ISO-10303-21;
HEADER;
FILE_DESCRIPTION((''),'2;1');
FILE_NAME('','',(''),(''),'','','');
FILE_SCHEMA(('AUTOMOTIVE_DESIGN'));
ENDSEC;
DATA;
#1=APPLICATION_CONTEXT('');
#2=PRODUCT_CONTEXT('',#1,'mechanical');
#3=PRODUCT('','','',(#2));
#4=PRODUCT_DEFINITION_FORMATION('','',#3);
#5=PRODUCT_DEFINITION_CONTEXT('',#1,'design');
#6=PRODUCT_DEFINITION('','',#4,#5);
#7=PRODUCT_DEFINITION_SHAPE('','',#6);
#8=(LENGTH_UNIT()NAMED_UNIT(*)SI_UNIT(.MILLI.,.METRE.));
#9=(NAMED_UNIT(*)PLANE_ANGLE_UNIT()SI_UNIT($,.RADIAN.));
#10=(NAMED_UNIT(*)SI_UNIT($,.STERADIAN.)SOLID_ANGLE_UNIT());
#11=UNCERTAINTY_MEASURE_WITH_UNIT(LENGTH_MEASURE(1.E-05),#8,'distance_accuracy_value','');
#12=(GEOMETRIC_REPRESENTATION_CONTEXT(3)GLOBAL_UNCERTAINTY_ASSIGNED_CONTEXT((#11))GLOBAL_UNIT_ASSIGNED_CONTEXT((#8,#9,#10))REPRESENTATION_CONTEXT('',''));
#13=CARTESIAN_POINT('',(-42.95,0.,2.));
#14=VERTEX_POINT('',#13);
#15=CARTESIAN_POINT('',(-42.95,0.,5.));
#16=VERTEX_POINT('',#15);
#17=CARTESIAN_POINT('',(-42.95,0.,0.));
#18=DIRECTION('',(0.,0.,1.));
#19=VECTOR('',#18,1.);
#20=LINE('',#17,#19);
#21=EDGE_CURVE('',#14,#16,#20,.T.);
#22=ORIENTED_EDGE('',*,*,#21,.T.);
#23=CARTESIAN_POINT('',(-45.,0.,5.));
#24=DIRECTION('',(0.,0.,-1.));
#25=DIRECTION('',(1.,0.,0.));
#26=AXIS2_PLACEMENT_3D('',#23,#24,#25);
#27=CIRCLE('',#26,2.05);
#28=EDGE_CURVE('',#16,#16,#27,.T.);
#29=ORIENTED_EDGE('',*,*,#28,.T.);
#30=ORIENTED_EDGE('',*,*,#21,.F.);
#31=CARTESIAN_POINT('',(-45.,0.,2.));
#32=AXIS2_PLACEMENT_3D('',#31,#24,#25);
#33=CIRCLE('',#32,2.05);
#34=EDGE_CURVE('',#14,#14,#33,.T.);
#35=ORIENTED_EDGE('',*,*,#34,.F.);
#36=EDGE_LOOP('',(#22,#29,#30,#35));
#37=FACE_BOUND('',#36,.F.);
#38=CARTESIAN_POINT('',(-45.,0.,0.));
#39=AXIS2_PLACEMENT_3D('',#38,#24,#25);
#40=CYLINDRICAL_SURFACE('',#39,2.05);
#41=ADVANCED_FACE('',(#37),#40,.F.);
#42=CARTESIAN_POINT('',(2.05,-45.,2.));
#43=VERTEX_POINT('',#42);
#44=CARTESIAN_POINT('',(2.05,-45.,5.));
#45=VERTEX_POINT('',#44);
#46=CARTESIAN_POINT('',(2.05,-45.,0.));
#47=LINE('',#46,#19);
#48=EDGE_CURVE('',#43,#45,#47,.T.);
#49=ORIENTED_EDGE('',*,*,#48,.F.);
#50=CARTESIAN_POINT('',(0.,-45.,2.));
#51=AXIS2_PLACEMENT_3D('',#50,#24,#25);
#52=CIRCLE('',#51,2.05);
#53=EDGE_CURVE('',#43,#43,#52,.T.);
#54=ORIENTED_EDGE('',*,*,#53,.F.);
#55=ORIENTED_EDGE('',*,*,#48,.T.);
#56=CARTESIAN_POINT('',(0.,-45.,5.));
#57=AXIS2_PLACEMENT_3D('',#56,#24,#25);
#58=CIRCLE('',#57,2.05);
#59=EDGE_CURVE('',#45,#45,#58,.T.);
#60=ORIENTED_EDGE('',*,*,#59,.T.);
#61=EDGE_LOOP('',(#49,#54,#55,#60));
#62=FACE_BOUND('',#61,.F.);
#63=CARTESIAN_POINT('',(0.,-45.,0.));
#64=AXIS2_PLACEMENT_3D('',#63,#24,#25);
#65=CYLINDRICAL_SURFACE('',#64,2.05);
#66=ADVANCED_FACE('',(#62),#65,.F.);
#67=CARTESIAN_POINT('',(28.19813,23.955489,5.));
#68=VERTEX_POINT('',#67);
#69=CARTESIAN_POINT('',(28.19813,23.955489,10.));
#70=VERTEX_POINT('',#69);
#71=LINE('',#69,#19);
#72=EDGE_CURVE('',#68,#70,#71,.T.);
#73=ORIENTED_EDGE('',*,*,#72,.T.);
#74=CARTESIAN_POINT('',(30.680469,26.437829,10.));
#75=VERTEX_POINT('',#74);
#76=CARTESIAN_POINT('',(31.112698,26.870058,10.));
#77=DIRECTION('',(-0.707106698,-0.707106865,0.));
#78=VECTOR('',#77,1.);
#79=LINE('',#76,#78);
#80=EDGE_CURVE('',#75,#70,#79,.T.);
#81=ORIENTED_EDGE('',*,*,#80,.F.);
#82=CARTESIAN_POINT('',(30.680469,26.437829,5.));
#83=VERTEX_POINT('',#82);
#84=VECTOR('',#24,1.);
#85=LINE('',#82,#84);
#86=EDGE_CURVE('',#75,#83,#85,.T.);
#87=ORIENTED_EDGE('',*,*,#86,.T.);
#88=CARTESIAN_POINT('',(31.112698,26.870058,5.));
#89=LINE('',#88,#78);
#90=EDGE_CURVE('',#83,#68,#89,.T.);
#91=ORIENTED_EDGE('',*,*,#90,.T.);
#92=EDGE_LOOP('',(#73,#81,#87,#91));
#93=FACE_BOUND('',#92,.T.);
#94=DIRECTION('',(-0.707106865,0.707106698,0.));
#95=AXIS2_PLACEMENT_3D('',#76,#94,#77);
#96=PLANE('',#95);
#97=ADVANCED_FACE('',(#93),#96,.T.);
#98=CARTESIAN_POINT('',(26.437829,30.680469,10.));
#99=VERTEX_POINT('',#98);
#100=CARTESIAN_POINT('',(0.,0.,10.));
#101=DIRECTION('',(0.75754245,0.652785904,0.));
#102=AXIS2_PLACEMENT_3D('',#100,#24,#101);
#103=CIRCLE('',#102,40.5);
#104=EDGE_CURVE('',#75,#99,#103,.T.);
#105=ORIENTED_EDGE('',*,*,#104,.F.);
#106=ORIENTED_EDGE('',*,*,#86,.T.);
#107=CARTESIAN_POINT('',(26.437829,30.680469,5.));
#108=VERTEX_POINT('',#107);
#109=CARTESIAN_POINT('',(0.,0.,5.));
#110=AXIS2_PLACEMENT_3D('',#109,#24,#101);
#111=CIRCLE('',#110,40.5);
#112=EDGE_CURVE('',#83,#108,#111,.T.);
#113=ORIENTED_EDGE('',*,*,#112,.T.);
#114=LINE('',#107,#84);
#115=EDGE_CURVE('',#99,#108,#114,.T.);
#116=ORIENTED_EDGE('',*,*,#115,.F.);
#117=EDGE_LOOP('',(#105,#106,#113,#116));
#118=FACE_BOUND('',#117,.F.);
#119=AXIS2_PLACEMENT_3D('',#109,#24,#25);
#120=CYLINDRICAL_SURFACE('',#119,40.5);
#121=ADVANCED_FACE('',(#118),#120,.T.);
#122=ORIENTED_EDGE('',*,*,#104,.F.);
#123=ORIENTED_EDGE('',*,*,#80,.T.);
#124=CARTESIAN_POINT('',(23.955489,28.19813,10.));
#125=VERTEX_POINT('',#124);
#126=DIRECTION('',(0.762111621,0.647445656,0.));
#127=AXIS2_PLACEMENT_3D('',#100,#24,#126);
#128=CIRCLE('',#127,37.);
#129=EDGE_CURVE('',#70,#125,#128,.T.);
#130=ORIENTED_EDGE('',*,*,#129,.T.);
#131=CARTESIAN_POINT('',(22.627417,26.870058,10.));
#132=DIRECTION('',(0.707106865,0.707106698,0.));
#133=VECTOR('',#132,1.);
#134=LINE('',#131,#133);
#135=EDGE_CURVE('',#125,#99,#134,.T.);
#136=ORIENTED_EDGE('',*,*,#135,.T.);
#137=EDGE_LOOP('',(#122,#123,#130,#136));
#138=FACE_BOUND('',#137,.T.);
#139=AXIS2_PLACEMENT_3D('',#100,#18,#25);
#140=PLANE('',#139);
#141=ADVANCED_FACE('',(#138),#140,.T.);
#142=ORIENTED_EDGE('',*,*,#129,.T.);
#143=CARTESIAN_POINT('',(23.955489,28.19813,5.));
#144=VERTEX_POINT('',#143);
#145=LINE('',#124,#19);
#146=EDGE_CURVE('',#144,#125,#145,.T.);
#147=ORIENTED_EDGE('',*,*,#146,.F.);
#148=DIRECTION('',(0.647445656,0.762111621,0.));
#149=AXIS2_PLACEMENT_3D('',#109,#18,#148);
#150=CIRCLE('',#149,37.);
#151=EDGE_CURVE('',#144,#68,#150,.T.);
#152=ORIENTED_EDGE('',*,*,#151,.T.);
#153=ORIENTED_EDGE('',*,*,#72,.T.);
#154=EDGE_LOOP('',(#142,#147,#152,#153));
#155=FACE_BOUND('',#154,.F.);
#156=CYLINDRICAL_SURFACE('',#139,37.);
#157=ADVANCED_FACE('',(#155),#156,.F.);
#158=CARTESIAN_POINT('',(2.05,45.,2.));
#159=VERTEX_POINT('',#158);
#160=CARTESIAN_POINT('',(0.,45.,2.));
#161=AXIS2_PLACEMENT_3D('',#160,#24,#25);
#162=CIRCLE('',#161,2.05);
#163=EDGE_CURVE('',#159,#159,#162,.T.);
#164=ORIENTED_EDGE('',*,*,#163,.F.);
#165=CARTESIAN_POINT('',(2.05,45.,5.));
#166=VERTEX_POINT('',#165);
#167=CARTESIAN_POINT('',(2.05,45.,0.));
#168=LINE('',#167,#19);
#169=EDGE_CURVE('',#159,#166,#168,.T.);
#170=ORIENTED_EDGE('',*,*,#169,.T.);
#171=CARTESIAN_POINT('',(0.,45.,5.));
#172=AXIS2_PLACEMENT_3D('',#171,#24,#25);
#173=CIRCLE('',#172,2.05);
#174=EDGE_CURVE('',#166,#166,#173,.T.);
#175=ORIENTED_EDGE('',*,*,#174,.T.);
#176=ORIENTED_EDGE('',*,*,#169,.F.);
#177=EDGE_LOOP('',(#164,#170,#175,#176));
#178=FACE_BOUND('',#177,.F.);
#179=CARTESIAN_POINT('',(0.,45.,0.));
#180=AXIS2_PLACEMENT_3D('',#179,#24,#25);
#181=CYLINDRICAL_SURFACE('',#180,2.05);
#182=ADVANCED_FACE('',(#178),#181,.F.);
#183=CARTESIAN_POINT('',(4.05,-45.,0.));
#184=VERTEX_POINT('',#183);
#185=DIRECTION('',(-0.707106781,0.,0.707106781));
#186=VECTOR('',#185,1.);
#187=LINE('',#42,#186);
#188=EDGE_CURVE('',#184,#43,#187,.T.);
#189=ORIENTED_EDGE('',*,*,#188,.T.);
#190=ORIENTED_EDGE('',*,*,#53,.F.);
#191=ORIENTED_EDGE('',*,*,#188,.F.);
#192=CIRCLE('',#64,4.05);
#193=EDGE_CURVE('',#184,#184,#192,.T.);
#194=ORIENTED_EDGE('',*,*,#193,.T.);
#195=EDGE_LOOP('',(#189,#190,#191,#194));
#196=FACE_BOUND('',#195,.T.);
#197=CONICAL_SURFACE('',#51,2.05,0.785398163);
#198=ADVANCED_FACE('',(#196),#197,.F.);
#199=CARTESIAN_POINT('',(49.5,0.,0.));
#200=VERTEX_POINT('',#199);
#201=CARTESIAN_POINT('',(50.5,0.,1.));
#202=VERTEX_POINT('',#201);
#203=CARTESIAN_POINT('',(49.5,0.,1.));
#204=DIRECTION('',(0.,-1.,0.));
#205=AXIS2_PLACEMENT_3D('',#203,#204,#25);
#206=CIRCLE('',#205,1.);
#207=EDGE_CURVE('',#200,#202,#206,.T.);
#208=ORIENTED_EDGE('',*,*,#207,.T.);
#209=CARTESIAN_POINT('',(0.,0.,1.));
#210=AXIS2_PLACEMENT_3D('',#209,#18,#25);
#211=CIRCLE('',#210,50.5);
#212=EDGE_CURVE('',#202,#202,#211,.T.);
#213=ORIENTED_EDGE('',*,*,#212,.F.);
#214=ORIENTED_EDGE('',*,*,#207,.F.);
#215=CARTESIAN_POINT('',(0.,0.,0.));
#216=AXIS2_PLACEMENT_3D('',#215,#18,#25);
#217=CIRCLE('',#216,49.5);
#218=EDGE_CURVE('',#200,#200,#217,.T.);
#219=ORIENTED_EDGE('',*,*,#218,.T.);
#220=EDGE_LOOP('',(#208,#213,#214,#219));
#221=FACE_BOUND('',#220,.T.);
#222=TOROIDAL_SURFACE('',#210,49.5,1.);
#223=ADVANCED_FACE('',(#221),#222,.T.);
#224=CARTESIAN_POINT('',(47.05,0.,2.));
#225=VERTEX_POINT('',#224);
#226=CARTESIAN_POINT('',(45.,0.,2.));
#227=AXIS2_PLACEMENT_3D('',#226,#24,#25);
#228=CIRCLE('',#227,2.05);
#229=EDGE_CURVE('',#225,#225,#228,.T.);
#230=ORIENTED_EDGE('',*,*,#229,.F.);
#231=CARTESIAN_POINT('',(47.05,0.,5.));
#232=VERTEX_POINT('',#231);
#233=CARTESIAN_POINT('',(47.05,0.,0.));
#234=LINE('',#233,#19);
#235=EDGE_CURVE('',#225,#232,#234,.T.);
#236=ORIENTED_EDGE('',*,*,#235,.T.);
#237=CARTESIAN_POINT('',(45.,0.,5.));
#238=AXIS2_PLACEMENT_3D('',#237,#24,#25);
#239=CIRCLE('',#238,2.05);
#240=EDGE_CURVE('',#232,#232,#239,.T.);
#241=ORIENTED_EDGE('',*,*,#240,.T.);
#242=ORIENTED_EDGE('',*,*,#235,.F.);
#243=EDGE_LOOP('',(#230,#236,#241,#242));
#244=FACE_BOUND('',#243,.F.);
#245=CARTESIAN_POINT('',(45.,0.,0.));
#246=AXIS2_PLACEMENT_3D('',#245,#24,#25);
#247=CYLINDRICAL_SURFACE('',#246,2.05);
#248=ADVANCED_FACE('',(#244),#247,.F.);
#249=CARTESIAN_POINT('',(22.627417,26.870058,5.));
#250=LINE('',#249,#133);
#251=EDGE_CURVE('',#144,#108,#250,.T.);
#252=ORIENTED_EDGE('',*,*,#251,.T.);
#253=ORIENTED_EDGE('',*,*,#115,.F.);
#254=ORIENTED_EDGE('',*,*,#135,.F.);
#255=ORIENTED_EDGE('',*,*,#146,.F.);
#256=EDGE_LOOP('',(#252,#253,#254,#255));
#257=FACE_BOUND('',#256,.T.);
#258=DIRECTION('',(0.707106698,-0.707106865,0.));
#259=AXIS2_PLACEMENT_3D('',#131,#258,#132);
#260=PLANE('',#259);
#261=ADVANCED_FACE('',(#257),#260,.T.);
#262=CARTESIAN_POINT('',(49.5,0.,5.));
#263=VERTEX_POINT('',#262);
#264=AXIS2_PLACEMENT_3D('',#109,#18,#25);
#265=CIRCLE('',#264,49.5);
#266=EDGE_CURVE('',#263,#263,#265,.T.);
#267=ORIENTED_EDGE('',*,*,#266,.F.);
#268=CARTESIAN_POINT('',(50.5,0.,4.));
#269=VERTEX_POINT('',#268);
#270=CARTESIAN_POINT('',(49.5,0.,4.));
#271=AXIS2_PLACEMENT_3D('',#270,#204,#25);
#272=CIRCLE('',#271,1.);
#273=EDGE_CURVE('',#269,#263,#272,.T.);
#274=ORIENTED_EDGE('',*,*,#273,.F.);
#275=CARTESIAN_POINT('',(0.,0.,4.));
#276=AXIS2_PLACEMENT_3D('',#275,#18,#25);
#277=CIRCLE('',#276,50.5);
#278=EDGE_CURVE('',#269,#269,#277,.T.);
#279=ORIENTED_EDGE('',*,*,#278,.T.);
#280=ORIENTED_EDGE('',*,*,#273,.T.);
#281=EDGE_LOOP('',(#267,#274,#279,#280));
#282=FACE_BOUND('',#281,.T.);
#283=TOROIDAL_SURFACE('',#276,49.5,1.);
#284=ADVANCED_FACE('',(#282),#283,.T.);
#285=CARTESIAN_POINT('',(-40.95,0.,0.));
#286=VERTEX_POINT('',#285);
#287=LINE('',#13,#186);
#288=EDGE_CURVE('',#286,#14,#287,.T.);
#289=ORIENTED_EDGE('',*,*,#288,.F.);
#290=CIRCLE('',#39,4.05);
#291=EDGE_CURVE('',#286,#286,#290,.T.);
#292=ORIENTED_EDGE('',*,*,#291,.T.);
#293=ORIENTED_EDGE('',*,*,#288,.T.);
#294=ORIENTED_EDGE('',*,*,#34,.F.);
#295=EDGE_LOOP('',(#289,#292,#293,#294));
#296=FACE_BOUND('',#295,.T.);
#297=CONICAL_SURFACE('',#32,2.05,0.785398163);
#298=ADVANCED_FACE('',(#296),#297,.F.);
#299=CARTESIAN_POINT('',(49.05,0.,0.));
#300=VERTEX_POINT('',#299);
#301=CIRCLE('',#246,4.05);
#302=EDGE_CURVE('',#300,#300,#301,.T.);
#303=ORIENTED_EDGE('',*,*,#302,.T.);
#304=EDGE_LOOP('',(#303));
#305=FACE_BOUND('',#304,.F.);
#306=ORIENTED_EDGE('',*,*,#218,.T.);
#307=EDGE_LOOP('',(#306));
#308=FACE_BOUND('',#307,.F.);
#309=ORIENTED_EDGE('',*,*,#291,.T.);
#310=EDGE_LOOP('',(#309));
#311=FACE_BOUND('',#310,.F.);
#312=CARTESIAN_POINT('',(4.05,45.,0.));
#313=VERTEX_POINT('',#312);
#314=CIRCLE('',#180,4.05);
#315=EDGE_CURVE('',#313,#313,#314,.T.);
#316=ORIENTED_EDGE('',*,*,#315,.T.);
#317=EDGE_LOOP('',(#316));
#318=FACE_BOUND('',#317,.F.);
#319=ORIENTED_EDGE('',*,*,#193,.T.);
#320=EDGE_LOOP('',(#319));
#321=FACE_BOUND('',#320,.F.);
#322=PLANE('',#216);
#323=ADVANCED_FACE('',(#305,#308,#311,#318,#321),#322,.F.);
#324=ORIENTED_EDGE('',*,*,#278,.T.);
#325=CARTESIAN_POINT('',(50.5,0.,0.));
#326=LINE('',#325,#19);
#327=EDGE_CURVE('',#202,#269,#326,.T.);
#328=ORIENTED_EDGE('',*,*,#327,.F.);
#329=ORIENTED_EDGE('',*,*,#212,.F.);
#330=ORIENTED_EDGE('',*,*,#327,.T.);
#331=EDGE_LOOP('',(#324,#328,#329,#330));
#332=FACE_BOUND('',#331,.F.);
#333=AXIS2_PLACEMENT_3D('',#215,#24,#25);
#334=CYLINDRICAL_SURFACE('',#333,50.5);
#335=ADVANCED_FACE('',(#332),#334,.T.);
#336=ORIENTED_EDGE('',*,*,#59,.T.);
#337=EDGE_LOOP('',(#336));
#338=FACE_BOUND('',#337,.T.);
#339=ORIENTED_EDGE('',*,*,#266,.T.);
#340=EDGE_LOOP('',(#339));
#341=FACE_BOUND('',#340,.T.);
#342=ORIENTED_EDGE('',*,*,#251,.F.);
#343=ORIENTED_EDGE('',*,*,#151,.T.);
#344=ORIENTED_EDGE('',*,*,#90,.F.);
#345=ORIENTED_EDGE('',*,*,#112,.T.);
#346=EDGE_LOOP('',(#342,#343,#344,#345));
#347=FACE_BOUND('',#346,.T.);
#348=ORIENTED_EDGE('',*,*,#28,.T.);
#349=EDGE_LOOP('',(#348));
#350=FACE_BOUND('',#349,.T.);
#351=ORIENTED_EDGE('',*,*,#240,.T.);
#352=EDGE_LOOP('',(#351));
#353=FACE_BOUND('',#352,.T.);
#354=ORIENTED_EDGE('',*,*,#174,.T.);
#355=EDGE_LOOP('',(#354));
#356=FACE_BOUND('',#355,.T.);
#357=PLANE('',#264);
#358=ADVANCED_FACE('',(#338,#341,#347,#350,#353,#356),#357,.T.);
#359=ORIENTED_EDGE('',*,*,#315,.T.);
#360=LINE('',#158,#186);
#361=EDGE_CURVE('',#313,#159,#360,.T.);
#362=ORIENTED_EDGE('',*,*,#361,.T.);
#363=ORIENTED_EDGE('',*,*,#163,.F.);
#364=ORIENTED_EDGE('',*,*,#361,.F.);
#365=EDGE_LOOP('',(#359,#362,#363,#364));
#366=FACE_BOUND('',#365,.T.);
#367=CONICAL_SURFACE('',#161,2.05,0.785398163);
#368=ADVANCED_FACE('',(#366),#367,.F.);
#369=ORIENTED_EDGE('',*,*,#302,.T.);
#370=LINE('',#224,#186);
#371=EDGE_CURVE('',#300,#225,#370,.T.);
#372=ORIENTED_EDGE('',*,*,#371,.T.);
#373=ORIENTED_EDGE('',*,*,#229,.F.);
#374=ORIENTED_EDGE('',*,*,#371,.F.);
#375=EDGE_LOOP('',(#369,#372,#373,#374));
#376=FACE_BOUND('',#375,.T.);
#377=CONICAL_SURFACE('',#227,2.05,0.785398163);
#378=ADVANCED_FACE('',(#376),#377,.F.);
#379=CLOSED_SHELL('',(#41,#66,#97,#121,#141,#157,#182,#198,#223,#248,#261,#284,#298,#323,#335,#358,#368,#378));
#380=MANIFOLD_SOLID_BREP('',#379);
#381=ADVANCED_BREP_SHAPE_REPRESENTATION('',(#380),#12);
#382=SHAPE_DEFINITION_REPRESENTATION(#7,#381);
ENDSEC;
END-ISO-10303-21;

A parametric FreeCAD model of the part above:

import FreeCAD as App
import Part
import Sketcher
from FreeCAD import Vector


def edges_at(feature, points):
    """Names of the edges that pass closest to the given points."""
    edges = feature.Shape.Edges
    near = lambda p: min(range(len(edges)), key=lambda i: edges[i].distToShape(Part.Vertex(*p))[0])
    return sorted({f"Edge{near(p) + 1}" for p in points})


def add_polygon(sketch, points):
    """Adds a closed chain of lines whose ends are joined by coincident constraints."""
    first, n = sketch.GeometryCount, len(points)
    for a, b in zip(points, points[1:] + points[:1]):
        sketch.addGeometry(Part.LineSegment(App.Vector(*a, 0), App.Vector(*b, 0)), False)
    for i in range(n):
        sketch.addConstraint(Sketcher.Constraint("Coincident", first + i, 2, first + (i + 1) % n, 1))

doc = App.newDocument("Part")
body = doc.addObject("PartDesign::Body", "Body")

# Sketch on XY plane
sketch1 = body.newObject("Sketcher::SketchObject", "Sketch")
sketch1.AttachmentSupport = (doc.getObject("XY_Plane"), [""])
sketch1.MapMode = "FlatFace"
sketch1.addGeometry(Part.Circle(Vector(0, 0, 0), Vector(0, 0, 1), 50), False)
sketch1.addConstraint([
    Sketcher.Constraint("Coincident", 0, 3, -1, 1),
    Sketcher.Constraint("Diameter", 0, 101.0),
])
pad1 = body.newObject("PartDesign::Pad", "Pad")
pad1.Profile = sketch1
pad1.Length = 5

# Sketch on XY plane
sketch2 = body.newObject("Sketcher::SketchObject", "Sketch001")
sketch2.AttachmentSupport = (doc.getObject("XY_Plane"), [""])
sketch2.MapMode = "FlatFace"
sketch2.AttachmentOffset = App.Placement(Vector(0, 0, 5), App.Rotation())
sketch2.addGeometry(Part.Circle(Vector(0, 0, 0), Vector(0, 0, 1), 40), False)
sketch2.addConstraint([
    Sketcher.Constraint("Coincident", 0, 3, -1, 1),
    Sketcher.Constraint("Diameter", 0, 81.0),
])
pad2 = body.newObject("PartDesign::Pad", "Pad001")
pad2.Profile = sketch2
pad2.Length = 5

# Sketch on XY plane
sketch3 = body.newObject("Sketcher::SketchObject", "Sketch002")
sketch3.AttachmentSupport = (doc.getObject("XY_Plane"), [""])
sketch3.MapMode = "FlatFace"
sketch3.AttachmentOffset = App.Placement(Vector(0, 0, 10), App.Rotation())
sketch3.addGeometry(Part.Circle(Vector(0, 0, 0), Vector(0, 0, 1), 37), False)
sketch3.addConstraint([
    Sketcher.Constraint("Coincident", 0, 3, -1, 1),
    Sketcher.Constraint("Diameter", 0, 74.0),
])
pocket1 = body.newObject("PartDesign::Pocket", "Pocket")
pocket1.Profile = sketch3
pocket1.Length = 5

# Sketch on XY plane
sketch4 = body.newObject("Sketcher::SketchObject", "Sketch003")
sketch4.AttachmentSupport = (doc.getObject("XY_Plane"), [""])
sketch4.MapMode = "FlatFace"
sketch4.AttachmentOffset = App.Placement(Vector(0, 0, 10), App.Rotation())
add_polygon(sketch4, [(31, 27), (27, 31), (23, 27), (27, 23)])  # lines 0-3
sketch4.addConstraint([
    Sketcher.Constraint("Perpendicular", 0, 1),
    Sketcher.Constraint("Perpendicular", 1, 2),
    Sketcher.Constraint("Perpendicular", 2, 3),
    Sketcher.Constraint("Horizontal", 1, 2, 3, 2),
    Sketcher.Constraint("Vertical", 0, 2, 2, 2),
    Sketcher.Constraint("Distance", 0, 5.999999),
    Sketcher.Constraint("DistanceY", -1, 1, 0, 2, 31.112698),
    Sketcher.Constraint("DistanceX", -1, 1, 3, 2, 31.112698),
])
pocket2 = body.newObject("PartDesign::Pocket", "Pocket001")
pocket2.Profile = sketch4
pocket2.Length = 5

# Sketch on XY plane
sketch5 = body.newObject("Sketcher::SketchObject", "Sketch004")
sketch5.AttachmentSupport = (doc.getObject("XY_Plane"), [""])
sketch5.MapMode = "FlatFace"
sketch5.addGeometry([
    Part.Circle(Vector(0, -45, 0), Vector(0, 0, 1), 2),
    Part.Circle(Vector(-45, 0, 0), Vector(0, 0, 1), 2),
    Part.Circle(Vector(45, 0, 0), Vector(0, 0, 1), 2),
    Part.Circle(Vector(0, 45, 0), Vector(0, 0, 1), 2),
], False)
sketch5.addConstraint([
    Sketcher.Constraint("Equal", 0, 1),
    Sketcher.Constraint("Equal", 1, 2),
    Sketcher.Constraint("Equal", 2, 3),
    Sketcher.Constraint("Symmetric", 1, 3, 2, 3, -1, 1),
    Sketcher.Constraint("Symmetric", 0, 3, 3, 3, -1, 1),
    Sketcher.Constraint("PointOnObject", 0, 3, -2),
    Sketcher.Constraint("PointOnObject", 1, 3, -1),
    Sketcher.Constraint("Diameter", 0, 4.1),
    Sketcher.Constraint("DistanceY", 0, 3, -1, 1, 45.0),
    Sketcher.Constraint("DistanceX", 1, 3, -1, 1, 45.0),
])
pocket3 = body.newObject("PartDesign::Pocket", "Pocket002")
pocket3.Profile = sketch5
pocket3.Length = 5
pocket3.Reversed = True
doc.recompute()

chamfer = body.newObject("PartDesign::Chamfer", "Chamfer")
chamfer.Base = (pocket3, edges_at(pocket3, [
    (42.95, 0, 0),
    (-2.05, 45, 0),
    (-47.05, 0, 0),
    (-2.05, -45, 0),
]))
chamfer.Size = 2
doc.recompute()

fillet = body.newObject("PartDesign::Fillet", "Fillet")
fillet.Base = (chamfer, edges_at(chamfer, [(-50.5, 0, 0), (-50.5, 0, 5)]))
fillet.Radius = 1

doc.recompute()
